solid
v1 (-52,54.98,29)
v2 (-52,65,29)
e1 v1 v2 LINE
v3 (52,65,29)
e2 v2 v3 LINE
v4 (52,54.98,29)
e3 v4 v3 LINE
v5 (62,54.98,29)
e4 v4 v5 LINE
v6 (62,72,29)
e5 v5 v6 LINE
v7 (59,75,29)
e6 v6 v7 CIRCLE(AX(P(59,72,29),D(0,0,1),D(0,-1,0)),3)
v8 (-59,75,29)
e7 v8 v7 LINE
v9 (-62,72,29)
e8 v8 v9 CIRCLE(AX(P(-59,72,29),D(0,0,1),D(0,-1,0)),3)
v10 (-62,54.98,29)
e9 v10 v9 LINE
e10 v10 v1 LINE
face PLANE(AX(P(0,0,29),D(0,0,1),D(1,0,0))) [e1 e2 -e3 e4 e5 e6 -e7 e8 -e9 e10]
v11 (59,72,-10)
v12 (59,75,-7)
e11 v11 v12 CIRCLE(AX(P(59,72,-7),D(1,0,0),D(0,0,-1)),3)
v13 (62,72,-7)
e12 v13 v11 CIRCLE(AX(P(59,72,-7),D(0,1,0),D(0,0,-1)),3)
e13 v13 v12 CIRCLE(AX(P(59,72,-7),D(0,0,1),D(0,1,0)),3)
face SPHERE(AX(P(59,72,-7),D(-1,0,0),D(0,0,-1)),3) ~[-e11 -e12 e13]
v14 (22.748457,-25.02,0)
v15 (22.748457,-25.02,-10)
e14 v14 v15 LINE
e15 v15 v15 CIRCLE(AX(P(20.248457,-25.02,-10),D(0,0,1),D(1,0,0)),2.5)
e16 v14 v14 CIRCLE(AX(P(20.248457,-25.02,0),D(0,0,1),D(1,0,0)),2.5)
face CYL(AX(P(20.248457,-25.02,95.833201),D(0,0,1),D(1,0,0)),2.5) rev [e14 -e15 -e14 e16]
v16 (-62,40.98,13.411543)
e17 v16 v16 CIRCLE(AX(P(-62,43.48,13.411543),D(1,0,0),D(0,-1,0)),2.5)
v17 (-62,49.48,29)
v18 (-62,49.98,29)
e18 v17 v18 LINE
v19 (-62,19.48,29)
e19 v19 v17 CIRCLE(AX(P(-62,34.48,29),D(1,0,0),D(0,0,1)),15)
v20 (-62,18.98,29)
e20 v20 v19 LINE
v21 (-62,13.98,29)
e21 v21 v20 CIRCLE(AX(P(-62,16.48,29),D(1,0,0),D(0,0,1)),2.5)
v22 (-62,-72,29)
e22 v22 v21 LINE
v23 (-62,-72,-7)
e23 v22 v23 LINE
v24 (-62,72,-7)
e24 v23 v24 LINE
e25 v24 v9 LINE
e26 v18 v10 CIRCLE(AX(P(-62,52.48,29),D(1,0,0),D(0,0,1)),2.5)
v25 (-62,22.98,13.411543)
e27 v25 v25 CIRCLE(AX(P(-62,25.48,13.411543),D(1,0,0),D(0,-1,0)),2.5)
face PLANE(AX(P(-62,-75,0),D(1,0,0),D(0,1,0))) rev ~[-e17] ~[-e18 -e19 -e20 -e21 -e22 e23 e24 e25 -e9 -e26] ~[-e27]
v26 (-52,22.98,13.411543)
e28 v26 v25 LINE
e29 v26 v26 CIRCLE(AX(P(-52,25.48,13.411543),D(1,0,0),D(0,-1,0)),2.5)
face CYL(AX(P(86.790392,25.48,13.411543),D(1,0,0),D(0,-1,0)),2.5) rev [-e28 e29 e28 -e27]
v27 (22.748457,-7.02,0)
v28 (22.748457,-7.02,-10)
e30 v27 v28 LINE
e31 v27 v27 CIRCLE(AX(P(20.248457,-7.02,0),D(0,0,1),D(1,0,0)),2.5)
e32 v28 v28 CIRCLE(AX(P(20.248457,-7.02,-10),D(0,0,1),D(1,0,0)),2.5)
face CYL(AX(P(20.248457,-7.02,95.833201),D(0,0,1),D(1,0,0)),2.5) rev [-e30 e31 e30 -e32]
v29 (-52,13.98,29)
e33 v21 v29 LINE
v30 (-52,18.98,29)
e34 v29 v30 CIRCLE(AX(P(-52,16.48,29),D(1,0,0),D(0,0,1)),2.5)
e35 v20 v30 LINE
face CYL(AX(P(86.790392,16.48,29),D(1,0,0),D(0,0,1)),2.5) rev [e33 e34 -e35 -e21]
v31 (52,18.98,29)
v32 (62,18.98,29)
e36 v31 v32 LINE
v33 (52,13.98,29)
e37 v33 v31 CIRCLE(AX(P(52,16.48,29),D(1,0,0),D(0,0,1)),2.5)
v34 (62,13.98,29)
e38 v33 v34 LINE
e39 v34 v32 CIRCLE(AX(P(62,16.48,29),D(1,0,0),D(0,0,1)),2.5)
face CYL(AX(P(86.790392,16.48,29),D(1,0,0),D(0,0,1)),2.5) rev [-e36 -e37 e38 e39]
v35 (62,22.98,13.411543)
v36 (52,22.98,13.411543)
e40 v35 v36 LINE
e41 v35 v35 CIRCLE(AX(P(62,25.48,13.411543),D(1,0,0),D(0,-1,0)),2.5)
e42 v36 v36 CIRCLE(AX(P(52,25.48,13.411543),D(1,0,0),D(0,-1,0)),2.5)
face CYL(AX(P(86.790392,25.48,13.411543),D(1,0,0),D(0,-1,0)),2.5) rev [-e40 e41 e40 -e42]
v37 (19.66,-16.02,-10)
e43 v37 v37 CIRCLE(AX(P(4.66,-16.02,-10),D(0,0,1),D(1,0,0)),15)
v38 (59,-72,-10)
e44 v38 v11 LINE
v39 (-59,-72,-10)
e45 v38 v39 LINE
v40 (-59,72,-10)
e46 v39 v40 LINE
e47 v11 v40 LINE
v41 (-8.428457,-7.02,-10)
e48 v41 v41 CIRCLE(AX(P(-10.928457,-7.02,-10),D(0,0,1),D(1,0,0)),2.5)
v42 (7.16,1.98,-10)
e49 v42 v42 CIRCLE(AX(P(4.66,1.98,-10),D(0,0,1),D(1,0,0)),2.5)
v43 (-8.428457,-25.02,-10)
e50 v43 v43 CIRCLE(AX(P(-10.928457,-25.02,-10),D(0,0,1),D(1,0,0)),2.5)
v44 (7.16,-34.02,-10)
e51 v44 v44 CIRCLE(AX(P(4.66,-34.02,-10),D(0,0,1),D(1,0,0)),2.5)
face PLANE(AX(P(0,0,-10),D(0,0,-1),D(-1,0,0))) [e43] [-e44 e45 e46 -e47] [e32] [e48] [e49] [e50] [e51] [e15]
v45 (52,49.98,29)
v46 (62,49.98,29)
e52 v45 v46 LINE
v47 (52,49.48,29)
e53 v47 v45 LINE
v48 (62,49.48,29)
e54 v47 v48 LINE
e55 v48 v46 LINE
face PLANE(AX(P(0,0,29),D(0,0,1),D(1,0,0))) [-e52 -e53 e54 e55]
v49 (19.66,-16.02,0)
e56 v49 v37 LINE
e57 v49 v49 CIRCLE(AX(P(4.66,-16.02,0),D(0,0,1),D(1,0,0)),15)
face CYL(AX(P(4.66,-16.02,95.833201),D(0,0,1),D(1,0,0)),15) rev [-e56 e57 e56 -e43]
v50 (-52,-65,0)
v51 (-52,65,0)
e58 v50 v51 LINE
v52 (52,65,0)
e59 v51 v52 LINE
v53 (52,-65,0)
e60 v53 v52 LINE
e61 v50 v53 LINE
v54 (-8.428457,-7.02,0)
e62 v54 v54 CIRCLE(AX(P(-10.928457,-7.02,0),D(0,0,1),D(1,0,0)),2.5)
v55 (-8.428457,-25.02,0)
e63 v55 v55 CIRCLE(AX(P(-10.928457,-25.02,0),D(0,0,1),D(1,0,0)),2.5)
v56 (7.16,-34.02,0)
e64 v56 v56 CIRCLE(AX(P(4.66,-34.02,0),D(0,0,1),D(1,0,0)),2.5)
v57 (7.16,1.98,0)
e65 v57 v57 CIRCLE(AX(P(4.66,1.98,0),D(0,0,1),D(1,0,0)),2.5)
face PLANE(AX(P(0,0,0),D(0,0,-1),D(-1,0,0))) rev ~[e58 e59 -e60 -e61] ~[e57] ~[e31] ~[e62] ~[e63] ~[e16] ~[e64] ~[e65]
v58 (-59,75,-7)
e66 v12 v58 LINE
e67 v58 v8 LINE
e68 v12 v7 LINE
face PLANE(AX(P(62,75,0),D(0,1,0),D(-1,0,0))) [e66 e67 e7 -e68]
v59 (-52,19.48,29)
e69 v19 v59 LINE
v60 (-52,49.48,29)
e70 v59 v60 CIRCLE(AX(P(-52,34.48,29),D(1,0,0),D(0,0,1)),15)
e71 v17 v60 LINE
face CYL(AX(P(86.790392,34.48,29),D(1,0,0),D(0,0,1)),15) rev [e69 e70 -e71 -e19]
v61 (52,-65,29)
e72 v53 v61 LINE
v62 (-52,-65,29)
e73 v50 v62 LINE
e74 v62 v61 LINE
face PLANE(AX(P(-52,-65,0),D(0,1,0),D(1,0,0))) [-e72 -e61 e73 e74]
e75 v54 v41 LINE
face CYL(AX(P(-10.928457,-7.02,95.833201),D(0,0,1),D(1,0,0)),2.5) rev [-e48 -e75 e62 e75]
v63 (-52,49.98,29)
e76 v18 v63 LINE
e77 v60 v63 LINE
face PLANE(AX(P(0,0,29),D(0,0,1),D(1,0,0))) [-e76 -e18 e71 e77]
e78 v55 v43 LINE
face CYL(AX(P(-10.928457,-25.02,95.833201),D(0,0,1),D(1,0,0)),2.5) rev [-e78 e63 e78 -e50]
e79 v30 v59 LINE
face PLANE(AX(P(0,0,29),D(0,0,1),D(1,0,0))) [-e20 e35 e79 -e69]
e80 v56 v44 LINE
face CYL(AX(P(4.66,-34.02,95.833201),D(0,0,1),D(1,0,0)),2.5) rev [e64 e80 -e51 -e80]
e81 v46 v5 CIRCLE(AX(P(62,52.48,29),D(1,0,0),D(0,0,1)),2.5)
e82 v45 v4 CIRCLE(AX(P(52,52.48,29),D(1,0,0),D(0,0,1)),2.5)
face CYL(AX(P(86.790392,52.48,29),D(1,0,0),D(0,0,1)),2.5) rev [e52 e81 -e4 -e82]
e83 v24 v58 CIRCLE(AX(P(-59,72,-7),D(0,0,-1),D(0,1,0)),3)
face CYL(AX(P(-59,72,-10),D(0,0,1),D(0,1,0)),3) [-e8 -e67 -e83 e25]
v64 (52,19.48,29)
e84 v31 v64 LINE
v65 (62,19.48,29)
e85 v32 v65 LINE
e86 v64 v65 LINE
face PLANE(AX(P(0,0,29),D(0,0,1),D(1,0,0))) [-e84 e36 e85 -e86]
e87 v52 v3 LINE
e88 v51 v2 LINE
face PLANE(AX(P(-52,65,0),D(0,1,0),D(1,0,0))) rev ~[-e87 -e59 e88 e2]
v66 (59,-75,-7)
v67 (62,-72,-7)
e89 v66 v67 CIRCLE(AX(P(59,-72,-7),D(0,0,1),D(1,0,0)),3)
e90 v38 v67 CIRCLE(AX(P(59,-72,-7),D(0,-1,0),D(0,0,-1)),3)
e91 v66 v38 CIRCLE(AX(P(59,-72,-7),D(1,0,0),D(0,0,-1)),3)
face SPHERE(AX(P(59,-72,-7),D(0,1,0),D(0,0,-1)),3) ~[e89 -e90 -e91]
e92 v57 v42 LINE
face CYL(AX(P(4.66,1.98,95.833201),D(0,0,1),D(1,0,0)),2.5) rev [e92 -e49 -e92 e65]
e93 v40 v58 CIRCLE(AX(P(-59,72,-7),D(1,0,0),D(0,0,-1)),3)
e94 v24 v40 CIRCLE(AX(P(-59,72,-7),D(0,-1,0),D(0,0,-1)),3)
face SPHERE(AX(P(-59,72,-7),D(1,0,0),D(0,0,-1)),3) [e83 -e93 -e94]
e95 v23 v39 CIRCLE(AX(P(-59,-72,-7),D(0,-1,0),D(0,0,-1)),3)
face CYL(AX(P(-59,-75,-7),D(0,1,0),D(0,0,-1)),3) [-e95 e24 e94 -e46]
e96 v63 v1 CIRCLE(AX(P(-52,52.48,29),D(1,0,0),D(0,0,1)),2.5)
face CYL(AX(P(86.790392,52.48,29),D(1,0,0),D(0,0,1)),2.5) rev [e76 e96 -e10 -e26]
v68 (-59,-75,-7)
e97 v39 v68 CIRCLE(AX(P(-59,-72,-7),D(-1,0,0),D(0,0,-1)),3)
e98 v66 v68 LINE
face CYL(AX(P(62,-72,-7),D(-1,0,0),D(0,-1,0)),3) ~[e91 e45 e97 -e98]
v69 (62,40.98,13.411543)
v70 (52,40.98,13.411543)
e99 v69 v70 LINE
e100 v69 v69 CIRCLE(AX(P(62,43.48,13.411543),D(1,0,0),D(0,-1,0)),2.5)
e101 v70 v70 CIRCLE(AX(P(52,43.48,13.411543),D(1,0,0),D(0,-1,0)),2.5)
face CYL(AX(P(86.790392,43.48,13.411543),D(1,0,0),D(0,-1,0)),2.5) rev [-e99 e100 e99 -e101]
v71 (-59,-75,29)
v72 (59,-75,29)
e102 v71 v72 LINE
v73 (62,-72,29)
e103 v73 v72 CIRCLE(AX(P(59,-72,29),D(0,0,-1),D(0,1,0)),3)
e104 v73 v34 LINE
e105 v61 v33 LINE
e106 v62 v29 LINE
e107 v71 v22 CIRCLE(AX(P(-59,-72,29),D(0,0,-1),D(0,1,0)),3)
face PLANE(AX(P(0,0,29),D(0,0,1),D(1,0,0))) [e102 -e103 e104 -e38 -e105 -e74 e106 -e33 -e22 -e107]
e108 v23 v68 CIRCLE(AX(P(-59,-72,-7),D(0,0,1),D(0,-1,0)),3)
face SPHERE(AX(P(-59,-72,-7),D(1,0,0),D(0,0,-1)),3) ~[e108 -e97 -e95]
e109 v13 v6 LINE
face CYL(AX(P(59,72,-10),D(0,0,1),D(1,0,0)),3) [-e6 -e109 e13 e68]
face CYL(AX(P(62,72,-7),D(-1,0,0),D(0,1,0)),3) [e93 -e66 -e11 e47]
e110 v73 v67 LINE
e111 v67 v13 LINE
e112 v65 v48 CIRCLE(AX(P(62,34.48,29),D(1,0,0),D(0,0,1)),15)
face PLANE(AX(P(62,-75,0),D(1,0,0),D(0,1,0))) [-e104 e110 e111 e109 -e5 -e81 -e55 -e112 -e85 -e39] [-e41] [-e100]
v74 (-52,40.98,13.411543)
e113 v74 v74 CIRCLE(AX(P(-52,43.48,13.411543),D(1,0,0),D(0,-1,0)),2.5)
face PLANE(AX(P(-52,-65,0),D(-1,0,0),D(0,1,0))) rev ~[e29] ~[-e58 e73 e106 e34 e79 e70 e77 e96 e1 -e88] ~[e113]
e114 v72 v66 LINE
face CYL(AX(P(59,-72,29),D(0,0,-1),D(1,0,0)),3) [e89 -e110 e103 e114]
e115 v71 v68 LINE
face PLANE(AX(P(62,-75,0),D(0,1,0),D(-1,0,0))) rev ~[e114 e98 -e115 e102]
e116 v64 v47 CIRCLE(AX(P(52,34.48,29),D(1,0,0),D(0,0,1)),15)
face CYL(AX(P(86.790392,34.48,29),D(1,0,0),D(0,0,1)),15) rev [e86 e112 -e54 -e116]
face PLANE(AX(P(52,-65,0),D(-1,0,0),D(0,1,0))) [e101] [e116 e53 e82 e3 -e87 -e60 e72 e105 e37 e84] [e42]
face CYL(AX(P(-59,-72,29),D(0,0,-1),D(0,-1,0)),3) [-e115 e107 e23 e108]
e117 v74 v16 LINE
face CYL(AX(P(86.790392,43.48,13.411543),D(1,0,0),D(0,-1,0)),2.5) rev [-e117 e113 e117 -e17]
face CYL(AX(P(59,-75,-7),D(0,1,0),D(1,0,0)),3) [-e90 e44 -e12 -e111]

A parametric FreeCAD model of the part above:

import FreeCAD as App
import Part
import Sketcher
Q = App.Units.Quantity


def edges_at(feature, points):
    """Names of the edges that pass closest to the given points."""
    edges = feature.Shape.Edges
    near = lambda p: min(range(len(edges)), key=lambda i: edges[i].distToShape(Part.Vertex(*p))[0])
    return sorted({f"Edge{near(p) + 1}" for p in points})

doc = App.newDocument("Part")
params = doc.addObject("Spreadsheet::Sheet", "Params")
for row, (alias, value) in enumerate([
    ("sketch1_width", "124 mm"),
    ("sketch1_width2", "104 mm"),
    ("sketch1_height", "150 mm"),
    ("sketch1_height2", "130 mm"),
    ("pad1_length", "29 mm"),
    ("sketch2_width", "124 mm"),
    ("sketch2_height", "150 mm"),
    ("pad2_length", "10 mm"),
    ("sketch3_diameter", "30 mm"),
    ("sketch3_diameter2", "5 mm"),
    ("sketch4_diameter", "30 mm"),
    ("sketch4_diameter2", "5 mm"),
    ("fillet_radius", "3 mm"),
], start=1):
    params.set(f"A{row}", alias)
    params.set(f"B{row}", "=" + value)
    params.setAlias(f"B{row}", alias)

body = doc.addObject("PartDesign::Body", "Body")

# Sketch on XY plane
sketch1 = doc.addObject("Sketcher::SketchObject", "Sketch")
body.addObject(sketch1)
sketch1.AttachmentSupport = (doc.XY_Plane, [""])
sketch1.MapMode = "FlatFace"
sketch1.addGeometry(Part.LineSegment(App.Vector(-62, 75, 0), App.Vector(-62, -75, 0)), False)
sketch1.addGeometry(Part.LineSegment(App.Vector(-62, -75, 0), App.Vector(62, -75, 0)), False)
sketch1.addGeometry(Part.LineSegment(App.Vector(62, -75, 0), App.Vector(62, 75, 0)), False)
sketch1.addGeometry(Part.LineSegment(App.Vector(62, 75, 0), App.Vector(-62, 75, 0)), False)
sketch1.addGeometry(Part.LineSegment(App.Vector(52, -65, 0), App.Vector(-52, -65, 0)), False)
sketch1.addGeometry(Part.LineSegment(App.Vector(-52, -65, 0), App.Vector(-52, 65, 0)), False)
sketch1.addGeometry(Part.LineSegment(App.Vector(-52, 65, 0), App.Vector(52, 65, 0)), False)
sketch1.addGeometry(Part.LineSegment(App.Vector(52, 65, 0), App.Vector(52, -65, 0)), False)
sketch1.addConstraint(Sketcher.Constraint("Coincident", 0, 2, 1, 1))
sketch1.addConstraint(Sketcher.Constraint("Coincident", 1, 2, 2, 1))
sketch1.addConstraint(Sketcher.Constraint("Coincident", 2, 2, 3, 1))
sketch1.addConstraint(Sketcher.Constraint("Coincident", 3, 2, 0, 1))
sketch1.addConstraint(Sketcher.Constraint("Coincident", 4, 2, 5, 1))
sketch1.addConstraint(Sketcher.Constraint("Coincident", 5, 2, 6, 1))
sketch1.addConstraint(Sketcher.Constraint("Coincident", 6, 2, 7, 1))
sketch1.addConstraint(Sketcher.Constraint("Coincident", 7, 2, 4, 1))
sketch1.addConstraint(Sketcher.Constraint("Vertical", 0))
sketch1.addConstraint(Sketcher.Constraint("Horizontal", 1))
sketch1.addConstraint(Sketcher.Constraint("Vertical", 2))
sketch1.addConstraint(Sketcher.Constraint("Horizontal", 3))
sketch1.addConstraint(Sketcher.Constraint("Horizontal", 4))
sketch1.addConstraint(Sketcher.Constraint("Vertical", 5))
sketch1.addConstraint(Sketcher.Constraint("Horizontal", 6))
sketch1.addConstraint(Sketcher.Constraint("Vertical", 7))
sketch1.addConstraint(Sketcher.Constraint("Symmetric", 0, 2, 2, 2, -1, 1))
sketch1.addConstraint(Sketcher.Constraint("Symmetric", 4, 2, 6, 2, -1, 1))
sketch1.addConstraint(Sketcher.Constraint("DistanceX", 1, 1, 1, 2, Q("124 mm")))
sketch1.addConstraint(Sketcher.Constraint("DistanceX", 4, 2, 4, 1, Q("104 mm")))
sketch1.addConstraint(Sketcher.Constraint("DistanceY", 0, 2, 0, 1, Q("150 mm")))
sketch1.addConstraint(Sketcher.Constraint("DistanceY", 5, 1, 5, 2, Q("130 mm")))
sketch1.setExpression("Constraints[18]", "Params.sketch1_width")
sketch1.setExpression("Constraints[19]", "Params.sketch1_width2")
sketch1.setExpression("Constraints[20]", "Params.sketch1_height")
sketch1.setExpression("Constraints[21]", "Params.sketch1_height2")
pad1 = doc.addObject("PartDesign::Pad", "Pad")
body.addObject(pad1)
pad1.Profile = sketch1
pad1.setExpression("Length", "Params.pad1_length")

# Sketch on XY plane
sketch2 = doc.addObject("Sketcher::SketchObject", "Sketch001")
body.addObject(sketch2)
sketch2.AttachmentSupport = (doc.XY_Plane, [""])
sketch2.MapMode = "FlatFace"
sketch2.addGeometry(Part.LineSegment(App.Vector(62, 75, 0), App.Vector(62, -75, 0)), False)
sketch2.addGeometry(Part.LineSegment(App.Vector(62, -75, 0), App.Vector(-62, -75, 0)), False)
sketch2.addGeometry(Part.LineSegment(App.Vector(-62, -75, 0), App.Vector(-62, 75, 0)), False)
sketch2.addGeometry(Part.LineSegment(App.Vector(-62, 75, 0), App.Vector(62, 75, 0)), False)
sketch2.addConstraint(Sketcher.Constraint("Coincident", 0, 2, 1, 1))
sketch2.addConstraint(Sketcher.Constraint("Coincident", 1, 2, 2, 1))
sketch2.addConstraint(Sketcher.Constraint("Coincident", 2, 2, 3, 1))
sketch2.addConstraint(Sketcher.Constraint("Coincident", 3, 2, 0, 1))
sketch2.addConstraint(Sketcher.Constraint("Vertical", 0))
sketch2.addConstraint(Sketcher.Constraint("Horizontal", 1))
sketch2.addConstraint(Sketcher.Constraint("Vertical", 2))
sketch2.addConstraint(Sketcher.Constraint("Horizontal", 3))
sketch2.addConstraint(Sketcher.Constraint("Symmetric", 0, 2, 2, 2, -1, 1))
sketch2.addConstraint(Sketcher.Constraint("DistanceX", 1, 2, 1, 1, Q("124 mm")))
sketch2.addConstraint(Sketcher.Constraint("DistanceY", 0, 2, 0, 1, Q("150 mm")))
sketch2.setExpression("Constraints[9]", "Params.sketch2_width")
sketch2.setExpression("Constraints[10]", "Params.sketch2_height")
pad2 = doc.addObject("PartDesign::Pad", "Pad001")
body.addObject(pad2)
pad2.Profile = sketch2
pad2.setExpression("Length", "Params.pad2_length")
pad2.Reversed = True

# Sketch on XY plane
sketch3 = doc.addObject("Sketcher::SketchObject", "Sketch002")
body.addObject(sketch3)
sketch3.AttachmentSupport = (doc.XY_Plane, [""])
sketch3.MapMode = "FlatFace"
sketch3.AttachmentOffset = App.Placement(App.Vector(0, 0, -10), App.Rotation())
sketch3.addGeometry(Part.Circle(App.Vector(4.7, -16, 0), App.Vector(0, 0, 1), 15), False)
sketch3.addGeometry(Part.Circle(App.Vector(4.7, 2, 0), App.Vector(0, 0, 1), 2.5), False)
sketch3.addGeometry(Part.Circle(App.Vector(-10.9, -7, 0), App.Vector(0, 0, 1), 2.5), False)
sketch3.addGeometry(Part.Circle(App.Vector(-10.9, -25, 0), App.Vector(0, 0, 1), 2.5), False)
sketch3.addGeometry(Part.Circle(App.Vector(4.7, -34, 0), App.Vector(0, 0, 1), 2.5), False)
sketch3.addGeometry(Part.Circle(App.Vector(20.2, -25, 0), App.Vector(0, 0, 1), 2.5), False)
sketch3.addGeometry(Part.Circle(App.Vector(20.2, -7, 0), App.Vector(0, 0, 1), 2.5), False)
sketch3.addConstraint(Sketcher.Constraint("Equal", 1, 2))
sketch3.addConstraint(Sketcher.Constraint("Equal", 2, 3))
sketch3.addConstraint(Sketcher.Constraint("Equal", 3, 4))
sketch3.addConstraint(Sketcher.Constraint("Equal", 4, 5))
sketch3.addConstraint(Sketcher.Constraint("Equal", 5, 6))
sketch3.addConstraint(Sketcher.Constraint("Horizontal", 3, 3, 5, 3))
sketch3.addConstraint(Sketcher.Constraint("Horizontal", 2, 3, 6, 3))
sketch3.addConstraint(Sketcher.Constraint("Vertical", 0, 3, 1, 3))
sketch3.addConstraint(Sketcher.Constraint("Vertical", 2, 3, 3, 3))
sketch3.addConstraint(Sketcher.Constraint("Vertical", 1, 3, 4, 3))
sketch3.addConstraint(Sketcher.Constraint("Vertical", 5, 3, 6, 3))
sketch3.addConstraint(Sketcher.Constraint("Diameter", 0, Q("30 mm")))
sketch3.addConstraint(Sketcher.Constraint("Diameter", 1, Q("5 mm")))
sketch3.addConstraint(Sketcher.Constraint("DistanceY", 0, 3, 1, 3, Q("18 mm")))
sketch3.addConstraint(Sketcher.Constraint("DistanceY", 0, 3, 2, 3, Q("9 mm")))
sketch3.addConstraint(Sketcher.Constraint("DistanceY", 3, 3, 0, 3, Q("9 mm")))
sketch3.addConstraint(Sketcher.Constraint("DistanceY", 4, 3, 3, 3, Q("9 mm")))
sketch3.addConstraint(Sketcher.Constraint("DistanceX", -1, 1, 0, 3, Q("4.66 mm")))
sketch3.addConstraint(Sketcher.Constraint("DistanceY", 0, 3, -1, 1, Q("16.02 mm")))
sketch3.addConstraint(Sketcher.Constraint("DistanceX", 2, 3, -1, 1, Q("10.928457 mm")))
sketch3.addConstraint(Sketcher.Constraint("DistanceX", -1, 1, 5, 3, Q("20.248457 mm")))
sketch3.setExpression("Constraints[11]", "Params.sketch3_diameter")
sketch3.setExpression("Constraints[12]", "Params.sketch3_diameter2")
pocket1 = doc.addObject("PartDesign::Pocket", "Pocket")
body.addObject(pocket1)
pocket1.Profile = sketch3
pocket1.Type = "ThroughAll"
pocket1.Midplane = True

# Sketch on YZ plane
sketch4 = doc.addObject("Sketcher::SketchObject", "Sketch003")
body.addObject(sketch4)
sketch4.AttachmentSupport = (doc.YZ_Plane, [""])
sketch4.MapMode = "FlatFace"
sketch4.AttachmentOffset = App.Placement(App.Vector(0, 0, -62), App.Rotation())
sketch4.addGeometry(Part.Circle(App.Vector(34.5, 29, 0), App.Vector(0, 0, 1), 15), False)
sketch4.addGeometry(Part.Circle(App.Vector(52.5, 29, 0), App.Vector(0, 0, 1), 2.5), False)
sketch4.addGeometry(Part.Circle(App.Vector(43.5, 44.6, 0), App.Vector(0, 0, 1), 2.5), False)
sketch4.addGeometry(Part.Circle(App.Vector(25.5, 44.6, 0), App.Vector(0, 0, 1), 2.5), False)
sketch4.addGeometry(Part.Circle(App.Vector(16.5, 29, 0), App.Vector(0, 0, 1), 2.5), False)
sketch4.addGeometry(Part.Circle(App.Vector(25.5, 13.4, 0), App.Vector(0, 0, 1), 2.5), False)
sketch4.addGeometry(Part.Circle(App.Vector(43.5, 13.4, 0), App.Vector(0, 0, 1), 2.5), False)
sketch4.addConstraint(Sketcher.Constraint("Equal", 1, 2))
sketch4.addConstraint(Sketcher.Constraint("Equal", 2, 3))
sketch4.addConstraint(Sketcher.Constraint("Equal", 3, 4))
sketch4.addConstraint(Sketcher.Constraint("Equal", 4, 5))
sketch4.addConstraint(Sketcher.Constraint("Equal", 5, 6))
sketch4.addConstraint(Sketcher.Constraint("Horizontal", 0, 3, 1, 3))
sketch4.addConstraint(Sketcher.Constraint("Horizontal", 2, 3, 3, 3))
sketch4.addConstraint(Sketcher.Constraint("Horizontal", 1, 3, 4, 3))
sketch4.addConstraint(Sketcher.Constraint("Horizontal", 5, 3, 6, 3))
sketch4.addConstraint(Sketcher.Constraint("Vertical", 3, 3, 5, 3))
sketch4.addConstraint(Sketcher.Constraint("Vertical", 2, 3, 6, 3))
sketch4.addConstraint(Sketcher.Constraint("Diameter", 0, Q("30 mm")))
sketch4.addConstraint(Sketcher.Constraint("Diameter", 1, Q("5 mm")))
sketch4.addConstraint(Sketcher.Constraint("DistanceY", -1, 1, 0, 3, Q("29 mm")))
sketch4.addConstraint(Sketcher.Constraint("DistanceX", 0, 3, 1, 3, Q("18 mm")))
sketch4.addConstraint(Sketcher.Constraint("DistanceX", 0, 3, 2, 3, Q("9 mm")))
sketch4.addConstraint(Sketcher.Constraint("DistanceX", 3, 3, 0, 3, Q("9 mm")))
sketch4.addConstraint(Sketcher.Constraint("DistanceX", 4, 3, 3, 3, Q("9 mm")))
sketch4.addConstraint(Sketcher.Constraint("DistanceX", -1, 1, 0, 3, Q("34.48 mm")))
sketch4.addConstraint(Sketcher.Constraint("DistanceY", -1, 1, 2, 3, Q("44.588457 mm")))
sketch4.addConstraint(Sketcher.Constraint("DistanceY", -1, 1, 5, 3, Q("13.411543 mm")))
sketch4.setExpression("Constraints[11]", "Params.sketch4_diameter")
sketch4.setExpression("Constraints[12]", "Params.sketch4_diameter2")
pocket2 = doc.addObject("PartDesign::Pocket", "Pocket001")
body.addObject(pocket2)
pocket2.Profile = sketch4
pocket2.Type = "ThroughAll"
pocket2.Midplane = True
doc.recompute()

fillet = doc.addObject("PartDesign::Fillet", "Fillet")
body.addObject(fillet)
fillet.Base = (pocket2, edges_at(pocket2, [
    (0, 75, -10),
    (62, 0, -10),
    (0, -75, -10),
    (-62, 0, -10),
    (62, -75, 9.5),
    (-62, -75, 9.5),
    (-62, 75, 9.5),
    (62, 75, 9.5),
]))
fillet.setExpression("Radius", "Params.fillet_radius")

doc.recompute()
